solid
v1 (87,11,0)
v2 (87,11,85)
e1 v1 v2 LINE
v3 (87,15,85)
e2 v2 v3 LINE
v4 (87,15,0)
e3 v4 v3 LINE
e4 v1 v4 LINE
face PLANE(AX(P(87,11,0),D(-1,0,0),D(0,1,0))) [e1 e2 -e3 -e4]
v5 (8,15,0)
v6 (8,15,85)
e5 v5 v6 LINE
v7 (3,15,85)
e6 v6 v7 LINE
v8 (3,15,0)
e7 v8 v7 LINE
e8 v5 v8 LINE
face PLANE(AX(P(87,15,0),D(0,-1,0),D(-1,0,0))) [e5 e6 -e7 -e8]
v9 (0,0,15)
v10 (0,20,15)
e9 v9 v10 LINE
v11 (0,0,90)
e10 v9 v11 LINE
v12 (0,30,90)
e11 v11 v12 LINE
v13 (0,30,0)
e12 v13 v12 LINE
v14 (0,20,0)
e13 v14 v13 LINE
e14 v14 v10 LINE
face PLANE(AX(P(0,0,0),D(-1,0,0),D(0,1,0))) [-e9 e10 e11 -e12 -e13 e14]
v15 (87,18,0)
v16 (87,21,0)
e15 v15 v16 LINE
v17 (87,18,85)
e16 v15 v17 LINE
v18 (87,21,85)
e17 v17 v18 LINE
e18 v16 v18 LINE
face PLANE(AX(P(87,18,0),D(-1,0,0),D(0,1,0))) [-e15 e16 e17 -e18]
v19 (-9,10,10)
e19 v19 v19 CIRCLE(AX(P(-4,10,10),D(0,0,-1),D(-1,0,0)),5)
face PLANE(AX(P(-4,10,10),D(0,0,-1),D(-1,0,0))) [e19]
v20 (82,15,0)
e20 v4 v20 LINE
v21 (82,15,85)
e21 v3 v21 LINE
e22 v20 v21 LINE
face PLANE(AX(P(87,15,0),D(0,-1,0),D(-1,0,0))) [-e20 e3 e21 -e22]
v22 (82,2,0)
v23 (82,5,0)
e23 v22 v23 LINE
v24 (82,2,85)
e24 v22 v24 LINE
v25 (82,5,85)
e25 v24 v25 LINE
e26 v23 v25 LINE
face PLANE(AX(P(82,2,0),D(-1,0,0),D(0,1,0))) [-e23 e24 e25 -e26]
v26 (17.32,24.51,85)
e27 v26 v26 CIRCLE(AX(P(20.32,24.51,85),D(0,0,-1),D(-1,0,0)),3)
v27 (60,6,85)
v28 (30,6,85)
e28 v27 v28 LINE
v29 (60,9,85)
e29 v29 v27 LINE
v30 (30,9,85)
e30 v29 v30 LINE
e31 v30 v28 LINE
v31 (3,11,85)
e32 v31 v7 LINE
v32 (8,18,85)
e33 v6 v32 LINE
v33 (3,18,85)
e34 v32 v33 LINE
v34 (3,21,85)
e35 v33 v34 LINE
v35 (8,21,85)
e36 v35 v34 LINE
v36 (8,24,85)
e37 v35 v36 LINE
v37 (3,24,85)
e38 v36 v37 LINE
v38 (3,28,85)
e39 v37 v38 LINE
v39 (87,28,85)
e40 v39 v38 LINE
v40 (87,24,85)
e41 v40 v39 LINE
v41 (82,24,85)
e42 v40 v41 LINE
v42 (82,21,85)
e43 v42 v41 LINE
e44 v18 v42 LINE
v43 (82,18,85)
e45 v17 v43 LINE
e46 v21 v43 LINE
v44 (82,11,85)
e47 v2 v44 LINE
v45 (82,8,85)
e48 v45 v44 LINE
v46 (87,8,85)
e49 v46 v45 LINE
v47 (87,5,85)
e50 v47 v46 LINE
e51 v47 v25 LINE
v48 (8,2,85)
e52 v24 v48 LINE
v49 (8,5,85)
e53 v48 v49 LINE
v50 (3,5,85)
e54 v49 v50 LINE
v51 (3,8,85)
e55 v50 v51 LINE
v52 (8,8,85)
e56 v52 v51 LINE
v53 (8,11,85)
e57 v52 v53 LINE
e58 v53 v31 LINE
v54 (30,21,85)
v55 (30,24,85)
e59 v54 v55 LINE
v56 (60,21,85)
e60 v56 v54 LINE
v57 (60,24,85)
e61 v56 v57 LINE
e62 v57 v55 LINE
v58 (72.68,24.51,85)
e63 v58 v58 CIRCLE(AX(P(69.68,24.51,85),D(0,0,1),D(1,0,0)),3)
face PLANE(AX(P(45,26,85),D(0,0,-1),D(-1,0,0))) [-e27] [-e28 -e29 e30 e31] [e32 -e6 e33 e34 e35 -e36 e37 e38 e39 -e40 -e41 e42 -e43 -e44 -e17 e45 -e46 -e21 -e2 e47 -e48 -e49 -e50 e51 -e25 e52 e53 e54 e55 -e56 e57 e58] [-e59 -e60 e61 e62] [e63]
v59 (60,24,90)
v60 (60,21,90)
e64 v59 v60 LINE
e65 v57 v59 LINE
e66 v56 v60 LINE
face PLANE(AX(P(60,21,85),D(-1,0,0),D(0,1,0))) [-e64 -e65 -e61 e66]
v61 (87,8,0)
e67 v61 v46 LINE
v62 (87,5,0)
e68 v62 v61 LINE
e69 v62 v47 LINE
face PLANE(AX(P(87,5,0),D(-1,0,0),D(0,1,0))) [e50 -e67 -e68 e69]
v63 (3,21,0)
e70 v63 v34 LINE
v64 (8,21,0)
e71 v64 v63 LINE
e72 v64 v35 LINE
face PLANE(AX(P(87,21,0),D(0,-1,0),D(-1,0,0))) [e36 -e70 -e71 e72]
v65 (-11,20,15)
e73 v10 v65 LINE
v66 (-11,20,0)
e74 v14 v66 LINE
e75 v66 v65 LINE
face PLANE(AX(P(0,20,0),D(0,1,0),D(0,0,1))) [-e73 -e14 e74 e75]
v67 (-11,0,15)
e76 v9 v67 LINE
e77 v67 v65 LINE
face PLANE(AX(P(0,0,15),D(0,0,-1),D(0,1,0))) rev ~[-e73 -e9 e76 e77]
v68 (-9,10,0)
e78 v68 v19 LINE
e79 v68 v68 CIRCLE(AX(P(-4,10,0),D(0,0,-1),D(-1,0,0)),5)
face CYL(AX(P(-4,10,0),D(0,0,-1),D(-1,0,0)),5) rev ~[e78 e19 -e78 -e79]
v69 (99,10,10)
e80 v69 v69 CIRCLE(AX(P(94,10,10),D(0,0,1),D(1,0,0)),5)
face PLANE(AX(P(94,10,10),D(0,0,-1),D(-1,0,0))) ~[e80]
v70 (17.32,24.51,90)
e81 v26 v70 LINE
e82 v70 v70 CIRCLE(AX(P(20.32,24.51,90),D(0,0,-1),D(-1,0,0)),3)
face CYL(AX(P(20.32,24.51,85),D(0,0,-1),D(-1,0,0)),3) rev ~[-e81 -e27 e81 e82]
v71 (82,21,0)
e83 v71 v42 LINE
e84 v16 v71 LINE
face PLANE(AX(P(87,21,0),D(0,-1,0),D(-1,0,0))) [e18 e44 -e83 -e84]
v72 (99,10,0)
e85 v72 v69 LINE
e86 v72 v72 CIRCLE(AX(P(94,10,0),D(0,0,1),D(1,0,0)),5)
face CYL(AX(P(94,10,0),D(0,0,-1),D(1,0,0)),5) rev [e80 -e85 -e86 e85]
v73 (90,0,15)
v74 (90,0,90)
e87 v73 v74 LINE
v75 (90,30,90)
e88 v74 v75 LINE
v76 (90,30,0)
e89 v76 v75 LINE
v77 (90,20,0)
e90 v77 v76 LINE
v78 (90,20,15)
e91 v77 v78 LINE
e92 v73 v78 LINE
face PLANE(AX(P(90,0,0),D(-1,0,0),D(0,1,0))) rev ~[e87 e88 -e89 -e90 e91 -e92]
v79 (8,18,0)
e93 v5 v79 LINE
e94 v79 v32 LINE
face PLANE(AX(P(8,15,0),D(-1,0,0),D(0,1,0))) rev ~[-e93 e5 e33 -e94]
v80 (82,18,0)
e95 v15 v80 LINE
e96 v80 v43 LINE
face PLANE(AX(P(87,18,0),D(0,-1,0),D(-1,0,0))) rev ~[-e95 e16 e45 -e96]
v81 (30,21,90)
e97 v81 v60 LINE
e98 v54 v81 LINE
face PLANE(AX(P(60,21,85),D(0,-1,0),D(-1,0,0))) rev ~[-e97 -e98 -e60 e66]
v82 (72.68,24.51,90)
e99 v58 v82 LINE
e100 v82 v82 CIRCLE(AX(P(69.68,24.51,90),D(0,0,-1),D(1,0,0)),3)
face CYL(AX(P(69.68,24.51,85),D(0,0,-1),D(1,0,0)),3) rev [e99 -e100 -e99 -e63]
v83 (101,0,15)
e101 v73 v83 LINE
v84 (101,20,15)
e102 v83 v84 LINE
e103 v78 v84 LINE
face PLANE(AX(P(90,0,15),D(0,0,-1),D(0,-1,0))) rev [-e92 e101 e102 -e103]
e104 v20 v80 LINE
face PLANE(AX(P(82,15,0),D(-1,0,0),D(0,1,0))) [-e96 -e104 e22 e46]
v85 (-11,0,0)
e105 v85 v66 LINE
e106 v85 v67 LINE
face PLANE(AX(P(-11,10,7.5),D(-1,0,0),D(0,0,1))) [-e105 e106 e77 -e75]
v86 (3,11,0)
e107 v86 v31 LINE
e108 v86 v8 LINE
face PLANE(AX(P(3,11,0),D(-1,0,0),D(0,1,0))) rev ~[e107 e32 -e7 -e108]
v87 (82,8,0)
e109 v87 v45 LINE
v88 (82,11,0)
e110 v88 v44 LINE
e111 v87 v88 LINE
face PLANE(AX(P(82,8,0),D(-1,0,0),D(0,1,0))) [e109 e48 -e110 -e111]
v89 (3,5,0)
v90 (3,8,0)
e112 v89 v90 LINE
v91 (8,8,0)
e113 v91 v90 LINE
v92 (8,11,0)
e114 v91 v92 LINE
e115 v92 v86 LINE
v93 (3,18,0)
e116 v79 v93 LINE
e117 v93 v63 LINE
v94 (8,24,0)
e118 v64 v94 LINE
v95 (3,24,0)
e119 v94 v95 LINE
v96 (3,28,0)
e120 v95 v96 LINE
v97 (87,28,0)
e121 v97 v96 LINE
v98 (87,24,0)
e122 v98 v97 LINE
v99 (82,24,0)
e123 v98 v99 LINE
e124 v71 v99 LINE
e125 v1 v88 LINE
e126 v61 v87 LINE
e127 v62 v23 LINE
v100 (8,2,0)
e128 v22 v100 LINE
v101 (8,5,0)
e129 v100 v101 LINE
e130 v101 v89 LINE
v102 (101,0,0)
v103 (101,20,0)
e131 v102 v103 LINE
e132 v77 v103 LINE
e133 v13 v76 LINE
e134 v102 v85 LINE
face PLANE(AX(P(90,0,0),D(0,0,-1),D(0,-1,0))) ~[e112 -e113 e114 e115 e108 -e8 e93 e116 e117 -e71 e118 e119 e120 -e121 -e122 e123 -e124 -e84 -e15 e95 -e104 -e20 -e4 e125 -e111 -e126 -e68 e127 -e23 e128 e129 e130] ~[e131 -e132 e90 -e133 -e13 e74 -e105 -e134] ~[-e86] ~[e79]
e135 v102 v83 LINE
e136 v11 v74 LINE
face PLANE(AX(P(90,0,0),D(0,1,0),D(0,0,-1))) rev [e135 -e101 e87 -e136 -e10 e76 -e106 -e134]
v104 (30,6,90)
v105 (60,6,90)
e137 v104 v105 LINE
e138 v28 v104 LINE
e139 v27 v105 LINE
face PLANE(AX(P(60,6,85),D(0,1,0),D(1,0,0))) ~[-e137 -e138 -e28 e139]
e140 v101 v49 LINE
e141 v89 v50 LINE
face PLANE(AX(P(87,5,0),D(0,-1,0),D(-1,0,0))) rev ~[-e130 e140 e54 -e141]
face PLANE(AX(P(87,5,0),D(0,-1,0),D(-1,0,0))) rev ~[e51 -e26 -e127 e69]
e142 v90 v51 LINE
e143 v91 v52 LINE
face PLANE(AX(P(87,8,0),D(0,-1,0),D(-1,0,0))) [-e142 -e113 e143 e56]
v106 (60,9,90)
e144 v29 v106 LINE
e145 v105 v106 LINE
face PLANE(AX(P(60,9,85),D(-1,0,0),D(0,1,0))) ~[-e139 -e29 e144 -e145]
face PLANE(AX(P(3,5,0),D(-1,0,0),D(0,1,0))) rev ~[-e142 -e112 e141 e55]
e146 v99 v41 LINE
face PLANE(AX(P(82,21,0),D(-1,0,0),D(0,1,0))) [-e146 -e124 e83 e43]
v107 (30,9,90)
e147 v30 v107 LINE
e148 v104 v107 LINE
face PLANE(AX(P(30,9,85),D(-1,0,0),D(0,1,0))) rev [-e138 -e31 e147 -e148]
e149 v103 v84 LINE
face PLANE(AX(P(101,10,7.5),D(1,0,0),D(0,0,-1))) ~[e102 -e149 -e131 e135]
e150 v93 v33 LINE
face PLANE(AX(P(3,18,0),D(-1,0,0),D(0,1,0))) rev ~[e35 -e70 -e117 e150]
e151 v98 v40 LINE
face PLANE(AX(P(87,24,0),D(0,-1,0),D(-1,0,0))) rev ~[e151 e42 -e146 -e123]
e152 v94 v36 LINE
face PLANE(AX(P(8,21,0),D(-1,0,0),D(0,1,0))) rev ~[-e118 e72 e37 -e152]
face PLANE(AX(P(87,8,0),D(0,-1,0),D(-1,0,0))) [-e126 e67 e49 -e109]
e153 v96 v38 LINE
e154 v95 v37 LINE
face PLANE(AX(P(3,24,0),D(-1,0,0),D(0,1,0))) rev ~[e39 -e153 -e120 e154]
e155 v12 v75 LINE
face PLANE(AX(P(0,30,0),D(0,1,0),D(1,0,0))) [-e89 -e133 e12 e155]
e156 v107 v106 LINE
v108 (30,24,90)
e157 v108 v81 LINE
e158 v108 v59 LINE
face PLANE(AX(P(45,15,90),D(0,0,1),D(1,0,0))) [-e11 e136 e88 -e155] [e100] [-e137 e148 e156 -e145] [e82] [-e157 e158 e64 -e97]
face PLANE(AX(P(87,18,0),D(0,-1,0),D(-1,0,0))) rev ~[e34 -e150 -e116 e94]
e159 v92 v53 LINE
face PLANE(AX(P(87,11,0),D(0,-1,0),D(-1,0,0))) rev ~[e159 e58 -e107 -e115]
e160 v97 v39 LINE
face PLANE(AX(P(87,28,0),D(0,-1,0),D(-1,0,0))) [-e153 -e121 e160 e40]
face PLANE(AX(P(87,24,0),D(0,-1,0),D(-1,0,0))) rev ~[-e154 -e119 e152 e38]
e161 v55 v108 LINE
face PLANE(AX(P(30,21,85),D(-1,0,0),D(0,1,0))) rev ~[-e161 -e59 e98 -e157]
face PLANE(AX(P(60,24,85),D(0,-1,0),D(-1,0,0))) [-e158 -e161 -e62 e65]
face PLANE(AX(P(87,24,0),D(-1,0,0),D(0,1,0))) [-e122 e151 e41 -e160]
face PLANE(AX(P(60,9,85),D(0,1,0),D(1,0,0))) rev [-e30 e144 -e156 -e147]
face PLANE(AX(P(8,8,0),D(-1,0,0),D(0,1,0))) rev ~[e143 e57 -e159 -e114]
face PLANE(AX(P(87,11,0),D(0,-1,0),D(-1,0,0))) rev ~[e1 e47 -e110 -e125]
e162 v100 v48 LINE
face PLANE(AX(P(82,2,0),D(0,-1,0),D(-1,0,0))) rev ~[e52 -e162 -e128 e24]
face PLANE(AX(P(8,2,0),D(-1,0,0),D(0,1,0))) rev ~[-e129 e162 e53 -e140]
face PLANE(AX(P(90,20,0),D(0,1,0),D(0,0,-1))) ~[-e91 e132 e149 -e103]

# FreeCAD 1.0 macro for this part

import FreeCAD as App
import Part
import Sketcher
from FreeCAD import Vector


def add_polygon(sketch, points):
    """Adds a closed chain of lines whose ends are joined by coincident constraints."""
    first, n = sketch.GeometryCount, len(points)
    for a, b in zip(points, points[1:] + points[:1]):
        sketch.addGeometry(Part.LineSegment(App.Vector(*a, 0), App.Vector(*b, 0)), False)
    for i in range(n):
        sketch.addConstraint(Sketcher.Constraint("Coincident", first + i, 2, first + (i + 1) % n, 1))

doc = App.newDocument("Part")
body = doc.addObject("PartDesign::Body", "Body")

# Sketch on XY plane
sketch1 = body.newObject("Sketcher::SketchObject", "Sketch")
sketch1.AttachmentSupport = (doc.getObject("XY_Plane"), [""])
sketch1.MapMode = "FlatFace"
add_polygon(sketch1, [(0, 30), (0, 0), (90, 0), (90, 30)])  # lines 0-3
sketch1.addConstraint(Sketcher.Constraint("Vertical", 0))
sketch1.addConstraint(Sketcher.Constraint("Horizontal", 1))
sketch1.addConstraint(Sketcher.Constraint("Vertical", 2))
sketch1.addConstraint(Sketcher.Constraint("Horizontal", 3))
sketch1.addConstraint(Sketcher.Constraint("Coincident", 0, 2, -1, 1))
sketch1.addConstraint(Sketcher.Constraint("DistanceX", 1, 1, 1, 2, 90.0))
sketch1.addConstraint(Sketcher.Constraint("DistanceY", 0, 2, 0, 1, 30.0))
pad1 = body.newObject("PartDesign::Pad", "Pad")
pad1.Profile = sketch1
pad1.Length = 90

# Sketch on XY plane
sketch2 = body.newObject("Sketcher::SketchObject", "Sketch001")
sketch2.AttachmentSupport = (doc.getObject("XY_Plane"), [""])
sketch2.MapMode = "FlatFace"
add_polygon(sketch2, [(87, 28), (87, 24), (3, 24), (3, 28)])  # lines 0-3
sketch2.addConstraint(Sketcher.Constraint("Vertical", 0))
sketch2.addConstraint(Sketcher.Constraint("Horizontal", 1))
sketch2.addConstraint(Sketcher.Constraint("Vertical", 2))
sketch2.addConstraint(Sketcher.Constraint("Horizontal", 3))
sketch2.addConstraint(Sketcher.Constraint("DistanceX", 1, 2, 1, 1, 84.0))
sketch2.addConstraint(Sketcher.Constraint("DistanceY", 0, 2, 0, 1, 4.0))
sketch2.addConstraint(Sketcher.Constraint("DistanceX", -1, 1, 0, 2, 87.0))
sketch2.addConstraint(Sketcher.Constraint("DistanceY", -1, 1, 0, 2, 24.0))
pocket1 = body.newObject("PartDesign::Pocket", "Pocket")
pocket1.Profile = sketch2
pocket1.Length = 85
pocket1.Reversed = True

# Sketch on XY plane
sketch3 = body.newObject("Sketcher::SketchObject", "Sketch002")
sketch3.AttachmentSupport = (doc.getObject("XY_Plane"), [""])
sketch3.MapMode = "FlatFace"
add_polygon(sketch3, [(82, 24), (82, 21), (8, 21), (8, 24)])  # lines 0-3
sketch3.addConstraint(Sketcher.Constraint("Vertical", 0))
sketch3.addConstraint(Sketcher.Constraint("Horizontal", 1))
sketch3.addConstraint(Sketcher.Constraint("Vertical", 2))
sketch3.addConstraint(Sketcher.Constraint("Horizontal", 3))
sketch3.addConstraint(Sketcher.Constraint("DistanceX", 1, 2, 1, 1, 74.0))
sketch3.addConstraint(Sketcher.Constraint("DistanceY", 0, 2, 0, 1, 3.0))
sketch3.addConstraint(Sketcher.Constraint("DistanceX", -1, 1, 0, 2, 82.0))
sketch3.addConstraint(Sketcher.Constraint("DistanceY", -1, 1, 0, 2, 21.0))
pocket2 = body.newObject("PartDesign::Pocket", "Pocket001")
pocket2.Profile = sketch3
pocket2.Length = 85
pocket2.Reversed = True

# Sketch on XY plane
sketch4 = body.newObject("Sketcher::SketchObject", "Sketch003")
sketch4.AttachmentSupport = (doc.getObject("XY_Plane"), [""])
sketch4.MapMode = "FlatFace"
add_polygon(sketch4, [(87, 21), (87, 18), (3, 18), (3, 21)])  # lines 0-3
sketch4.addConstraint(Sketcher.Constraint("Vertical", 0))
sketch4.addConstraint(Sketcher.Constraint("Horizontal", 1))
sketch4.addConstraint(Sketcher.Constraint("Vertical", 2))
sketch4.addConstraint(Sketcher.Constraint("Horizontal", 3))
sketch4.addConstraint(Sketcher.Constraint("DistanceX", 1, 2, 1, 1, 84.0))
sketch4.addConstraint(Sketcher.Constraint("DistanceY", 0, 2, 0, 1, 3.0))
sketch4.addConstraint(Sketcher.Constraint("DistanceX", -1, 1, 0, 2, 87.0))
sketch4.addConstraint(Sketcher.Constraint("DistanceY", -1, 1, 0, 2, 18.0))
pocket3 = body.newObject("PartDesign::Pocket", "Pocket002")
pocket3.Profile = sketch4
pocket3.Length = 85
pocket3.Reversed = True

# Sketch on XY plane
sketch5 = body.newObject("Sketcher::SketchObject", "Sketch004")
sketch5.AttachmentSupport = (doc.getObject("XY_Plane"), [""])
sketch5.MapMode = "FlatFace"
add_polygon(sketch5, [(82, 18), (82, 15), (8, 15), (8, 18)])  # lines 0-3
sketch5.addConstraint(Sketcher.Constraint("Vertical", 0))
sketch5.addConstraint(Sketcher.Constraint("Horizontal", 1))
sketch5.addConstraint(Sketcher.Constraint("Vertical", 2))
sketch5.addConstraint(Sketcher.Constraint("Horizontal", 3))
sketch5.addConstraint(Sketcher.Constraint("DistanceX", 1, 2, 1, 1, 74.0))
sketch5.addConstraint(Sketcher.Constraint("DistanceY", 0, 2, 0, 1, 3.0))
sketch5.addConstraint(Sketcher.Constraint("DistanceX", -1, 1, 0, 2, 82.0))
sketch5.addConstraint(Sketcher.Constraint("DistanceY", -1, 1, 0, 2, 15.0))
pocket4 = body.newObject("PartDesign::Pocket", "Pocket003")
pocket4.Profile = sketch5
pocket4.Length = 85
pocket4.Reversed = True

# Sketch on XY plane
sketch6 = body.newObject("Sketcher::SketchObject", "Sketch005")
sketch6.AttachmentSupport = (doc.getObject("XY_Plane"), [""])
sketch6.MapMode = "FlatFace"
add_polygon(sketch6, [(87, 15), (87, 11), (3, 11), (3, 15)])  # lines 0-3
sketch6.addConstraint(Sketcher.Constraint("Vertical", 0))
sketch6.addConstraint(Sketcher.Constraint("Horizontal", 1))
sketch6.addConstraint(Sketcher.Constraint("Vertical", 2))
sketch6.addConstraint(Sketcher.Constraint("Horizontal", 3))
sketch6.addConstraint(Sketcher.Constraint("DistanceX", 1, 2, 1, 1, 84.0))
sketch6.addConstraint(Sketcher.Constraint("DistanceY", 0, 2, 0, 1, 4.0))
sketch6.addConstraint(Sketcher.Constraint("DistanceX", -1, 1, 0, 2, 87.0))
sketch6.addConstraint(Sketcher.Constraint("DistanceY", -1, 1, 0, 2, 11.0))
pocket5 = body.newObject("PartDesign::Pocket", "Pocket004")
pocket5.Profile = sketch6
pocket5.Length = 85
pocket5.Reversed = True

# Sketch on XY plane
sketch7 = body.newObject("Sketcher::SketchObject", "Sketch006")
sketch7.AttachmentSupport = (doc.getObject("XY_Plane"), [""])
sketch7.MapMode = "FlatFace"
add_polygon(sketch7, [(82, 11), (82, 8), (8, 8), (8, 11)])  # lines 0-3
sketch7.addConstraint(Sketcher.Constraint("Vertical", 0))
sketch7.addConstraint(Sketcher.Constraint("Horizontal", 1))
sketch7.addConstraint(Sketcher.Constraint("Vertical", 2))
sketch7.addConstraint(Sketcher.Constraint("Horizontal", 3))
sketch7.addConstraint(Sketcher.Constraint("DistanceX", 1, 2, 1, 1, 74.0))
sketch7.addConstraint(Sketcher.Constraint("DistanceY", 0, 2, 0, 1, 3.0))
sketch7.addConstraint(Sketcher.Constraint("DistanceX", -1, 1, 0, 2, 82.0))
sketch7.addConstraint(Sketcher.Constraint("DistanceY", -1, 1, 0, 2, 8.0))
pocket6 = body.newObject("PartDesign::Pocket", "Pocket005")
pocket6.Profile = sketch7
pocket6.Length = 85
pocket6.Reversed = True

# Sketch on XY plane
sketch8 = body.newObject("Sketcher::SketchObject", "Sketch007")
sketch8.AttachmentSupport = (doc.getObject("XY_Plane"), [""])
sketch8.MapMode = "FlatFace"
add_polygon(sketch8, [(87, 8), (87, 5), (3, 5), (3, 8)])  # lines 0-3
sketch8.addConstraint(Sketcher.Constraint("Vertical", 0))
sketch8.addConstraint(Sketcher.Constraint("Horizontal", 1))
sketch8.addConstraint(Sketcher.Constraint("Vertical", 2))
sketch8.addConstraint(Sketcher.Constraint("Horizontal", 3))
sketch8.addConstraint(Sketcher.Constraint("DistanceX", 1, 2, 1, 1, 84.0))
sketch8.addConstraint(Sketcher.Constraint("DistanceY", 0, 2, 0, 1, 3.0))
sketch8.addConstraint(Sketcher.Constraint("DistanceX", -1, 1, 0, 2, 87.0))
sketch8.addConstraint(Sketcher.Constraint("DistanceY", -1, 1, 0, 2, 5.0))
pocket7 = body.newObject("PartDesign::Pocket", "Pocket006")
pocket7.Profile = sketch8
pocket7.Length = 85
pocket7.Reversed = True

# Sketch on XY plane
sketch9 = body.newObject("Sketcher::SketchObject", "Sketch008")
sketch9.AttachmentSupport = (doc.getObject("XY_Plane"), [""])
sketch9.MapMode = "FlatFace"
add_polygon(sketch9, [(82, 5), (82, 2), (8, 2), (8, 5)])  # lines 0-3
sketch9.addConstraint(Sketcher.Constraint("Vertical", 0))
sketch9.addConstraint(Sketcher.Constraint("Horizontal", 1))
sketch9.addConstraint(Sketcher.Constraint("Vertical", 2))
sketch9.addConstraint(Sketcher.Constraint("Horizontal", 3))
sketch9.addConstraint(Sketcher.Constraint("DistanceX", 1, 2, 1, 1, 74.0))
sketch9.addConstraint(Sketcher.Constraint("DistanceY", 0, 2, 0, 1, 3.0))
sketch9.addConstraint(Sketcher.Constraint("DistanceX", -1, 1, 0, 2, 82.0))
sketch9.addConstraint(Sketcher.Constraint("DistanceY", -1, 1, 0, 2, 2.0))
pocket8 = body.newObject("PartDesign::Pocket", "Pocket007")
pocket8.Profile = sketch9
pocket8.Length = 85
pocket8.Reversed = True

# Sketch on XY plane
sketch10 = body.newObject("Sketcher::SketchObject", "Sketch009")
sketch10.AttachmentSupport = (doc.getObject("XY_Plane"), [""])
sketch10.MapMode = "FlatFace"
sketch10.AttachmentOffset = App.Placement(Vector(0, 0, 85), App.Rotation())
sketch10.addGeometry(Part.Circle(Vector(20.32, 24.51, 0), Vector(0, 0, 1), 3), False)
sketch10.addConstraint(Sketcher.Constraint("Diameter", 0, 6.0))
sketch10.addConstraint(Sketcher.Constraint("DistanceX", -1, 1, 0, 3, 20.32))
sketch10.addConstraint(Sketcher.Constraint("DistanceY", -1, 1, 0, 3, 24.51))
pocket9 = body.newObject("PartDesign::Pocket", "Pocket008")
pocket9.Profile = sketch10
pocket9.Length = 85
pocket9.Reversed = True
doc.recompute()

datumplane = body.newObject("PartDesign::Plane", "DatumPlane")
datumplane.AttachmentSupport = (doc.getObject("YZ_Plane"), [""])
datumplane.MapMode = "FlatFace"
datumplane.AttachmentOffset = App.Placement(Vector(0, 0, 45), App.Rotation())
mirrored = body.newObject("PartDesign::Mirrored", "Mirrored")
mirrored.Originals = [pocket9]
mirrored.MirrorPlane = (datumplane, [""])
body.Tip = mirrored

# Sketch on XY plane
sketch11 = body.newObject("Sketcher::SketchObject", "Sketch010")
sketch11.AttachmentSupport = (doc.getObject("XY_Plane"), [""])
sketch11.MapMode = "FlatFace"
sketch11.AttachmentOffset = App.Placement(Vector(0, 0, 85), App.Rotation())
add_polygon(sketch11, [(60, 24), (60, 21), (30, 21), (30, 24)])  # lines 0-3
sketch11.addConstraint(Sketcher.Constraint("Vertical", 0))
sketch11.addConstraint(Sketcher.Constraint("Horizontal", 1))
sketch11.addConstraint(Sketcher.Constraint("Vertical", 2))
sketch11.addConstraint(Sketcher.Constraint("Horizontal", 3))
sketch11.addConstraint(Sketcher.Constraint("DistanceX", 1, 2, 1, 1, 30.0))
sketch11.addConstraint(Sketcher.Constraint("DistanceY", 0, 2, 0, 1, 3.0))
sketch11.addConstraint(Sketcher.Constraint("DistanceX", -1, 1, 0, 2, 60.0))
sketch11.addConstraint(Sketcher.Constraint("DistanceY", -1, 1, 0, 2, 21.0))
pocket10 = body.newObject("PartDesign::Pocket", "Pocket009")
pocket10.Profile = sketch11
pocket10.Length = 85
pocket10.Reversed = True
doc.recompute()

datumplane2 = body.newObject("PartDesign::Plane", "DatumPlane001")
datumplane2.AttachmentSupport = (doc.getObject("XZ_Plane"), [""])
datumplane2.MapMode = "FlatFace"
datumplane2.AttachmentOffset = App.Placement(Vector(0, 0, -15), App.Rotation())
mirrored2 = body.newObject("PartDesign::Mirrored", "Mirrored001")
mirrored2.Originals = [pocket10]
mirrored2.MirrorPlane = (datumplane2, [""])
body.Tip = mirrored2

# Sketch on YZ plane
sketch12 = body.newObject("Sketcher::SketchObject", "Sketch011")
sketch12.AttachmentSupport = (doc.getObject("YZ_Plane"), [""])
sketch12.MapMode = "FlatFace"
add_polygon(sketch12, [(20, 0), (0, 0), (0, 15), (20, 15)])  # lines 0-3
sketch12.addConstraint(Sketcher.Constraint("Horizontal", 0))
sketch12.addConstraint(Sketcher.Constraint("Vertical", 1))
sketch12.addConstraint(Sketcher.Constraint("Horizontal", 2))
sketch12.addConstraint(Sketcher.Constraint("Vertical", 3))
sketch12.addConstraint(Sketcher.Constraint("Coincident", 0, 2, -1, 1))
sketch12.addConstraint(Sketcher.Constraint("DistanceX", 0, 2, 0, 1, 20.0))
sketch12.addConstraint(Sketcher.Constraint("DistanceY", 1, 1, 1, 2, 15.0))
pad2 = body.newObject("PartDesign::Pad", "Pad001")
pad2.Profile = sketch12
pad2.Length = 11
pad2.Reversed = True
doc.recompute()

datumplane3 = body.newObject("PartDesign::Plane", "DatumPlane002")
datumplane3.AttachmentSupport = (doc.getObject("YZ_Plane"), [""])
datumplane3.MapMode = "FlatFace"
datumplane3.AttachmentOffset = App.Placement(Vector(0, 0, 45), App.Rotation())
mirrored3 = body.newObject("PartDesign::Mirrored", "Mirrored002")
mirrored3.Originals = [pad2]
mirrored3.MirrorPlane = (datumplane3, [""])
body.Tip = mirrored3

# Sketch on XY plane
sketch13 = body.newObject("Sketcher::SketchObject", "Sketch012")
sketch13.AttachmentSupport = (doc.getObject("XY_Plane"), [""])
sketch13.MapMode = "FlatFace"
sketch13.addGeometry(Part.Circle(Vector(-4, 10, 0), Vector(0, 0, 1), 5), False)
sketch13.addConstraint(Sketcher.Constraint("Diameter", 0, 10.0))
sketch13.addConstraint(Sketcher.Constraint("DistanceX", 0, 3, -1, 1, 4.0))
sketch13.addConstraint(Sketcher.Constraint("DistanceY", -1, 1, 0, 3, 10.0))
pocket11 = body.newObject("PartDesign::Pocket", "Pocket010")
pocket11.Profile = sketch13
pocket11.Length = 10
pocket11.Reversed = True
doc.recompute()

datumplane4 = body.newObject("PartDesign::Plane", "DatumPlane003")
datumplane4.AttachmentSupport = (doc.getObject("YZ_Plane"), [""])
datumplane4.MapMode = "FlatFace"
datumplane4.AttachmentOffset = App.Placement(Vector(0, 0, 45), App.Rotation())
mirrored4 = body.newObject("PartDesign::Mirrored", "Mirrored003")
mirrored4.Originals = [pocket11]
mirrored4.MirrorPlane = (datumplane4, [""])
body.Tip = mirrored4

doc.recompute()
